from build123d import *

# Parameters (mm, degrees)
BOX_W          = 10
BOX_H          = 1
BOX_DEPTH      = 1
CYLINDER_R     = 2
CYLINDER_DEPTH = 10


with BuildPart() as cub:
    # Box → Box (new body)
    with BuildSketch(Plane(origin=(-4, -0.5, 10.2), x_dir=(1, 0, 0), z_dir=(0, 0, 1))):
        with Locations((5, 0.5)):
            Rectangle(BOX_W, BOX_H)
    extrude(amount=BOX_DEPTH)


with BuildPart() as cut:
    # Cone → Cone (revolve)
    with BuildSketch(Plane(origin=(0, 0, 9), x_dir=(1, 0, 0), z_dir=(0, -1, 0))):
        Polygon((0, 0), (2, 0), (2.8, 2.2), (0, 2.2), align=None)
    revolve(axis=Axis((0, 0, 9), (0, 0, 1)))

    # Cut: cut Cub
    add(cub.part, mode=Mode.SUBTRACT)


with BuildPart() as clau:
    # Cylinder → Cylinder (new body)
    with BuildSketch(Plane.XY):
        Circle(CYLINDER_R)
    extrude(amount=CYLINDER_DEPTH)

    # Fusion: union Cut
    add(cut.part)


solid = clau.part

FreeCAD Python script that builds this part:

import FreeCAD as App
import Part
import Sketcher
Q = App.Units.Quantity


def add_polygon(sketch, points):
    """Adds a closed chain of lines whose ends are joined by coincident constraints."""
    first, n = sketch.GeometryCount, len(points)
    for a, b in zip(points, points[1:] + points[:1]):
        sketch.addGeometry(Part.LineSegment(App.Vector(*a, 0), App.Vector(*b, 0)), False)
    for i in range(n):
        sketch.addConstraint(Sketcher.Constraint("Coincident", first + i, 2, first + (i + 1) % n, 1))

doc = App.newDocument("Part")
body = doc.addObject("PartDesign::Body", "Body")

# Sketch on XY plane
sketch1 = doc.addObject("Sketcher::SketchObject", "Sketch")
body.addObject(sketch1)
sketch1.AttachmentSupport = (doc.XY_Plane, [""])
sketch1.MapMode = "FlatFace"
sketch1.AttachmentOffset = App.Placement(App.Vector(0, 0, 10.2), App.Rotation())
add_polygon(sketch1, [(-4, 0.5), (-4, -0.5), (6, -0.5), (6, 0.5)])  # lines 0-3
sketch1.addConstraint(Sketcher.Constraint("Vertical", 0))
sketch1.addConstraint(Sketcher.Constraint("Horizontal", 1))
sketch1.addConstraint(Sketcher.Constraint("Vertical", 2))
sketch1.addConstraint(Sketcher.Constraint("Horizontal", 3))
sketch1.addConstraint(Sketcher.Constraint("DistanceX", 1, 1, 1, 2, Q("10 mm")))
sketch1.addConstraint(Sketcher.Constraint("DistanceY", 0, 2, 0, 1, Q("1 mm")))
sketch1.addConstraint(Sketcher.Constraint("DistanceX", 0, 2, -1, 1, Q("4 mm")))
sketch1.addConstraint(Sketcher.Constraint("DistanceY", 0, 2, -1, 1, Q("0.5 mm")))
pad1 = doc.addObject("PartDesign::Pad", "Pad")
body.addObject(pad1)
pad1.Profile = sketch1
pad1.Length = 1
body2 = doc.addObject("PartDesign::Body", "Body001")

# Sketch on XZ plane
sketch2 = doc.addObject("Sketcher::SketchObject", "Sketch001")
body2.addObject(sketch2)
sketch2.AttachmentSupport = (doc.getObject("XZ_Plane001"), [""])
sketch2.MapMode = "FlatFace"
add_polygon(sketch2, [(0, 9), (2, 9), (2.8, 11.2), (0, 11.2)])  # lines 0-3
sketch2.addConstraint(Sketcher.Constraint("Horizontal", 0))
sketch2.addConstraint(Sketcher.Constraint("Horizontal", 2))
sketch2.addConstraint(Sketcher.Constraint("Vertical", 3))
sketch2.addConstraint(Sketcher.Constraint("PointOnObject", 2, 2, -2))
sketch2.addConstraint(Sketcher.Constraint("DistanceX", 0, 1, 0, 2, Q("2 mm")))
sketch2.addConstraint(Sketcher.Constraint("DistanceX", 2, 2, 2, 1, Q("2.8 mm")))
sketch2.addConstraint(Sketcher.Constraint("DistanceY", 3, 2, 3, 1, Q("2.2 mm")))
sketch2.addConstraint(Sketcher.Constraint("DistanceY", -1, 1, 0, 2, Q("9 mm")))
revolution = doc.addObject("PartDesign::Revolution", "Revolution")
body2.addObject(revolution)
revolution.Profile = sketch2
revolution.ReferenceAxis = (sketch2, ["V_Axis"])
revolution.Angle = 360
doc.recompute()

boolean = doc.addObject("PartDesign::Boolean", "Boolean")
body2.addObject(boolean)
boolean.Type = "Cut"
boolean.addObjects([body])
body3 = doc.addObject("PartDesign::Body", "Body002")

# Sketch on XY plane
sketch3 = doc.addObject("Sketcher::SketchObject", "Sketch002")
body3.addObject(sketch3)
sketch3.AttachmentSupport = (doc.getObject("XY_Plane002"), [""])
sketch3.MapMode = "FlatFace"
sketch3.addGeometry(Part.Circle(App.Vector(0, 0, 0), App.Vector(0, 0, 1), 2), False)
sketch3.addConstraint(Sketcher.Constraint("Coincident", 0, 3, -1, 1))
sketch3.addConstraint(Sketcher.Constraint("Diameter", 0, Q("4 mm")))
pad2 = doc.addObject("PartDesign::Pad", "Pad001")
body3.addObject(pad2)
pad2.Profile = sketch3
pad2.Length = 10
doc.recompute()

boolean2 = doc.addObject("PartDesign::Boolean", "Boolean001")
body3.addObject(boolean2)
boolean2.Type = "Fuse"
boolean2.addObjects([body2])

doc.recompute()
